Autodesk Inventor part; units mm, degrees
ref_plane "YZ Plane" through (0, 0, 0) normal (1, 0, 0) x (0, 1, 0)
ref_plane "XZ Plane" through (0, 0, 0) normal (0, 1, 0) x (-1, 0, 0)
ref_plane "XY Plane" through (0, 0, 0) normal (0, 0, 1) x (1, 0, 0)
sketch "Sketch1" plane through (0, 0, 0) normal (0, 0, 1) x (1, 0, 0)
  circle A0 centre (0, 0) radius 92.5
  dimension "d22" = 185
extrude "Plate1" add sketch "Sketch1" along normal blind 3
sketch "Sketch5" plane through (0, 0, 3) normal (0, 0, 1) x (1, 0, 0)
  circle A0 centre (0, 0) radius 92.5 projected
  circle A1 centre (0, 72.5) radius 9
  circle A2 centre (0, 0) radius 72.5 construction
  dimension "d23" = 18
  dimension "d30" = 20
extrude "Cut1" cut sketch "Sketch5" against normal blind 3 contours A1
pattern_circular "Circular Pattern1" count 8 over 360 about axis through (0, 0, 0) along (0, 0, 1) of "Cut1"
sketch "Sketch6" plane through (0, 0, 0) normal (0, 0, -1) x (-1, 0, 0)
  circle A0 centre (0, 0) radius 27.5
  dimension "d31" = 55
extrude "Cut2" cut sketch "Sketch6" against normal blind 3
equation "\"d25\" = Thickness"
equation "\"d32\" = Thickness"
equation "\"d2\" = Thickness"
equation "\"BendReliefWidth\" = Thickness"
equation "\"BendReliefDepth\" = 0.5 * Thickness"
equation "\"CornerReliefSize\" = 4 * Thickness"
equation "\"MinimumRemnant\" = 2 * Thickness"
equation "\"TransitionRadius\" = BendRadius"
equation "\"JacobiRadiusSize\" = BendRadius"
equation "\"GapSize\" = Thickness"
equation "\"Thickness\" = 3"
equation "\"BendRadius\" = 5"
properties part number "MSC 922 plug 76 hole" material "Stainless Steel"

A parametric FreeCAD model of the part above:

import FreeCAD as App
import Part
import Sketcher

V = App.Vector
Q = App.Units.Quantity

doc = App.newDocument("Part")
body = doc.addObject("PartDesign::Body", "Body")

sketch1 = body.newObject("Sketcher::SketchObject", "Sketch")
sketch1.AttachmentSupport = (doc.getObject("XY_Plane"), [""])
sketch1.MapMode = "FlatFace"
sketch1.addGeometry(Part.Circle(V(0, 0, 0), V(0, 0, 1), 92), False)
sketch1.addConstraint(Sketcher.Constraint("Coincident", 0, 3, -1, 1))
sketch1.addConstraint(Sketcher.Constraint("Diameter", 0, Q("185 mm")))
pad1 = body.newObject("PartDesign::Pad", "Pad")
pad1.Profile = sketch1
pad1.Length = 3

sketch2 = body.newObject("Sketcher::SketchObject", "Sketch001")
sketch2.AttachmentSupport = (doc.getObject("XY_Plane"), [""])
sketch2.MapMode = "FlatFace"
sketch2.AttachmentOffset = App.Placement(V(0, 0, 3), App.Rotation())
sketch2.addGeometry(Part.Circle(V(0, 72, 0), V(0, 0, 1), 9), False)
sketch2.addConstraint(Sketcher.Constraint("PointOnObject", 0, 3, -2))
sketch2.addConstraint(Sketcher.Constraint("Diameter", 0, Q("18 mm")))
sketch2.addConstraint(Sketcher.Constraint("DistanceY", -1, 1, 0, 3, Q("72.5 mm")))
pocket1 = body.newObject("PartDesign::Pocket", "Pocket")
pocket1.Profile = sketch2
pocket1.Length = 3
doc.recompute()

polarpattern = body.newObject("PartDesign::PolarPattern", "PolarPattern")
polarpattern.Originals = [pocket1]
polarpattern.Axis = (doc.getObject("Z_Axis"), [""])
polarpattern.Angle = 360
polarpattern.Occurrences = 8
body.Tip = polarpattern

sketch3 = body.newObject("Sketcher::SketchObject", "Sketch002")
sketch3.AttachmentSupport = (doc.getObject("XY_Plane"), [""])
sketch3.MapMode = "FlatFace"
sketch3.addGeometry(Part.Circle(V(0, 0, 0), V(0, 0, 1), 28), False)
sketch3.addConstraint(Sketcher.Constraint("Coincident", 0, 3, -1, 1))
sketch3.addConstraint(Sketcher.Constraint("Diameter", 0, Q("55 mm")))
pocket2 = body.newObject("PartDesign::Pocket", "Pocket001")
pocket2.Profile = sketch3
pocket2.Length = 3
pocket2.Reversed = True

doc.recompute()
